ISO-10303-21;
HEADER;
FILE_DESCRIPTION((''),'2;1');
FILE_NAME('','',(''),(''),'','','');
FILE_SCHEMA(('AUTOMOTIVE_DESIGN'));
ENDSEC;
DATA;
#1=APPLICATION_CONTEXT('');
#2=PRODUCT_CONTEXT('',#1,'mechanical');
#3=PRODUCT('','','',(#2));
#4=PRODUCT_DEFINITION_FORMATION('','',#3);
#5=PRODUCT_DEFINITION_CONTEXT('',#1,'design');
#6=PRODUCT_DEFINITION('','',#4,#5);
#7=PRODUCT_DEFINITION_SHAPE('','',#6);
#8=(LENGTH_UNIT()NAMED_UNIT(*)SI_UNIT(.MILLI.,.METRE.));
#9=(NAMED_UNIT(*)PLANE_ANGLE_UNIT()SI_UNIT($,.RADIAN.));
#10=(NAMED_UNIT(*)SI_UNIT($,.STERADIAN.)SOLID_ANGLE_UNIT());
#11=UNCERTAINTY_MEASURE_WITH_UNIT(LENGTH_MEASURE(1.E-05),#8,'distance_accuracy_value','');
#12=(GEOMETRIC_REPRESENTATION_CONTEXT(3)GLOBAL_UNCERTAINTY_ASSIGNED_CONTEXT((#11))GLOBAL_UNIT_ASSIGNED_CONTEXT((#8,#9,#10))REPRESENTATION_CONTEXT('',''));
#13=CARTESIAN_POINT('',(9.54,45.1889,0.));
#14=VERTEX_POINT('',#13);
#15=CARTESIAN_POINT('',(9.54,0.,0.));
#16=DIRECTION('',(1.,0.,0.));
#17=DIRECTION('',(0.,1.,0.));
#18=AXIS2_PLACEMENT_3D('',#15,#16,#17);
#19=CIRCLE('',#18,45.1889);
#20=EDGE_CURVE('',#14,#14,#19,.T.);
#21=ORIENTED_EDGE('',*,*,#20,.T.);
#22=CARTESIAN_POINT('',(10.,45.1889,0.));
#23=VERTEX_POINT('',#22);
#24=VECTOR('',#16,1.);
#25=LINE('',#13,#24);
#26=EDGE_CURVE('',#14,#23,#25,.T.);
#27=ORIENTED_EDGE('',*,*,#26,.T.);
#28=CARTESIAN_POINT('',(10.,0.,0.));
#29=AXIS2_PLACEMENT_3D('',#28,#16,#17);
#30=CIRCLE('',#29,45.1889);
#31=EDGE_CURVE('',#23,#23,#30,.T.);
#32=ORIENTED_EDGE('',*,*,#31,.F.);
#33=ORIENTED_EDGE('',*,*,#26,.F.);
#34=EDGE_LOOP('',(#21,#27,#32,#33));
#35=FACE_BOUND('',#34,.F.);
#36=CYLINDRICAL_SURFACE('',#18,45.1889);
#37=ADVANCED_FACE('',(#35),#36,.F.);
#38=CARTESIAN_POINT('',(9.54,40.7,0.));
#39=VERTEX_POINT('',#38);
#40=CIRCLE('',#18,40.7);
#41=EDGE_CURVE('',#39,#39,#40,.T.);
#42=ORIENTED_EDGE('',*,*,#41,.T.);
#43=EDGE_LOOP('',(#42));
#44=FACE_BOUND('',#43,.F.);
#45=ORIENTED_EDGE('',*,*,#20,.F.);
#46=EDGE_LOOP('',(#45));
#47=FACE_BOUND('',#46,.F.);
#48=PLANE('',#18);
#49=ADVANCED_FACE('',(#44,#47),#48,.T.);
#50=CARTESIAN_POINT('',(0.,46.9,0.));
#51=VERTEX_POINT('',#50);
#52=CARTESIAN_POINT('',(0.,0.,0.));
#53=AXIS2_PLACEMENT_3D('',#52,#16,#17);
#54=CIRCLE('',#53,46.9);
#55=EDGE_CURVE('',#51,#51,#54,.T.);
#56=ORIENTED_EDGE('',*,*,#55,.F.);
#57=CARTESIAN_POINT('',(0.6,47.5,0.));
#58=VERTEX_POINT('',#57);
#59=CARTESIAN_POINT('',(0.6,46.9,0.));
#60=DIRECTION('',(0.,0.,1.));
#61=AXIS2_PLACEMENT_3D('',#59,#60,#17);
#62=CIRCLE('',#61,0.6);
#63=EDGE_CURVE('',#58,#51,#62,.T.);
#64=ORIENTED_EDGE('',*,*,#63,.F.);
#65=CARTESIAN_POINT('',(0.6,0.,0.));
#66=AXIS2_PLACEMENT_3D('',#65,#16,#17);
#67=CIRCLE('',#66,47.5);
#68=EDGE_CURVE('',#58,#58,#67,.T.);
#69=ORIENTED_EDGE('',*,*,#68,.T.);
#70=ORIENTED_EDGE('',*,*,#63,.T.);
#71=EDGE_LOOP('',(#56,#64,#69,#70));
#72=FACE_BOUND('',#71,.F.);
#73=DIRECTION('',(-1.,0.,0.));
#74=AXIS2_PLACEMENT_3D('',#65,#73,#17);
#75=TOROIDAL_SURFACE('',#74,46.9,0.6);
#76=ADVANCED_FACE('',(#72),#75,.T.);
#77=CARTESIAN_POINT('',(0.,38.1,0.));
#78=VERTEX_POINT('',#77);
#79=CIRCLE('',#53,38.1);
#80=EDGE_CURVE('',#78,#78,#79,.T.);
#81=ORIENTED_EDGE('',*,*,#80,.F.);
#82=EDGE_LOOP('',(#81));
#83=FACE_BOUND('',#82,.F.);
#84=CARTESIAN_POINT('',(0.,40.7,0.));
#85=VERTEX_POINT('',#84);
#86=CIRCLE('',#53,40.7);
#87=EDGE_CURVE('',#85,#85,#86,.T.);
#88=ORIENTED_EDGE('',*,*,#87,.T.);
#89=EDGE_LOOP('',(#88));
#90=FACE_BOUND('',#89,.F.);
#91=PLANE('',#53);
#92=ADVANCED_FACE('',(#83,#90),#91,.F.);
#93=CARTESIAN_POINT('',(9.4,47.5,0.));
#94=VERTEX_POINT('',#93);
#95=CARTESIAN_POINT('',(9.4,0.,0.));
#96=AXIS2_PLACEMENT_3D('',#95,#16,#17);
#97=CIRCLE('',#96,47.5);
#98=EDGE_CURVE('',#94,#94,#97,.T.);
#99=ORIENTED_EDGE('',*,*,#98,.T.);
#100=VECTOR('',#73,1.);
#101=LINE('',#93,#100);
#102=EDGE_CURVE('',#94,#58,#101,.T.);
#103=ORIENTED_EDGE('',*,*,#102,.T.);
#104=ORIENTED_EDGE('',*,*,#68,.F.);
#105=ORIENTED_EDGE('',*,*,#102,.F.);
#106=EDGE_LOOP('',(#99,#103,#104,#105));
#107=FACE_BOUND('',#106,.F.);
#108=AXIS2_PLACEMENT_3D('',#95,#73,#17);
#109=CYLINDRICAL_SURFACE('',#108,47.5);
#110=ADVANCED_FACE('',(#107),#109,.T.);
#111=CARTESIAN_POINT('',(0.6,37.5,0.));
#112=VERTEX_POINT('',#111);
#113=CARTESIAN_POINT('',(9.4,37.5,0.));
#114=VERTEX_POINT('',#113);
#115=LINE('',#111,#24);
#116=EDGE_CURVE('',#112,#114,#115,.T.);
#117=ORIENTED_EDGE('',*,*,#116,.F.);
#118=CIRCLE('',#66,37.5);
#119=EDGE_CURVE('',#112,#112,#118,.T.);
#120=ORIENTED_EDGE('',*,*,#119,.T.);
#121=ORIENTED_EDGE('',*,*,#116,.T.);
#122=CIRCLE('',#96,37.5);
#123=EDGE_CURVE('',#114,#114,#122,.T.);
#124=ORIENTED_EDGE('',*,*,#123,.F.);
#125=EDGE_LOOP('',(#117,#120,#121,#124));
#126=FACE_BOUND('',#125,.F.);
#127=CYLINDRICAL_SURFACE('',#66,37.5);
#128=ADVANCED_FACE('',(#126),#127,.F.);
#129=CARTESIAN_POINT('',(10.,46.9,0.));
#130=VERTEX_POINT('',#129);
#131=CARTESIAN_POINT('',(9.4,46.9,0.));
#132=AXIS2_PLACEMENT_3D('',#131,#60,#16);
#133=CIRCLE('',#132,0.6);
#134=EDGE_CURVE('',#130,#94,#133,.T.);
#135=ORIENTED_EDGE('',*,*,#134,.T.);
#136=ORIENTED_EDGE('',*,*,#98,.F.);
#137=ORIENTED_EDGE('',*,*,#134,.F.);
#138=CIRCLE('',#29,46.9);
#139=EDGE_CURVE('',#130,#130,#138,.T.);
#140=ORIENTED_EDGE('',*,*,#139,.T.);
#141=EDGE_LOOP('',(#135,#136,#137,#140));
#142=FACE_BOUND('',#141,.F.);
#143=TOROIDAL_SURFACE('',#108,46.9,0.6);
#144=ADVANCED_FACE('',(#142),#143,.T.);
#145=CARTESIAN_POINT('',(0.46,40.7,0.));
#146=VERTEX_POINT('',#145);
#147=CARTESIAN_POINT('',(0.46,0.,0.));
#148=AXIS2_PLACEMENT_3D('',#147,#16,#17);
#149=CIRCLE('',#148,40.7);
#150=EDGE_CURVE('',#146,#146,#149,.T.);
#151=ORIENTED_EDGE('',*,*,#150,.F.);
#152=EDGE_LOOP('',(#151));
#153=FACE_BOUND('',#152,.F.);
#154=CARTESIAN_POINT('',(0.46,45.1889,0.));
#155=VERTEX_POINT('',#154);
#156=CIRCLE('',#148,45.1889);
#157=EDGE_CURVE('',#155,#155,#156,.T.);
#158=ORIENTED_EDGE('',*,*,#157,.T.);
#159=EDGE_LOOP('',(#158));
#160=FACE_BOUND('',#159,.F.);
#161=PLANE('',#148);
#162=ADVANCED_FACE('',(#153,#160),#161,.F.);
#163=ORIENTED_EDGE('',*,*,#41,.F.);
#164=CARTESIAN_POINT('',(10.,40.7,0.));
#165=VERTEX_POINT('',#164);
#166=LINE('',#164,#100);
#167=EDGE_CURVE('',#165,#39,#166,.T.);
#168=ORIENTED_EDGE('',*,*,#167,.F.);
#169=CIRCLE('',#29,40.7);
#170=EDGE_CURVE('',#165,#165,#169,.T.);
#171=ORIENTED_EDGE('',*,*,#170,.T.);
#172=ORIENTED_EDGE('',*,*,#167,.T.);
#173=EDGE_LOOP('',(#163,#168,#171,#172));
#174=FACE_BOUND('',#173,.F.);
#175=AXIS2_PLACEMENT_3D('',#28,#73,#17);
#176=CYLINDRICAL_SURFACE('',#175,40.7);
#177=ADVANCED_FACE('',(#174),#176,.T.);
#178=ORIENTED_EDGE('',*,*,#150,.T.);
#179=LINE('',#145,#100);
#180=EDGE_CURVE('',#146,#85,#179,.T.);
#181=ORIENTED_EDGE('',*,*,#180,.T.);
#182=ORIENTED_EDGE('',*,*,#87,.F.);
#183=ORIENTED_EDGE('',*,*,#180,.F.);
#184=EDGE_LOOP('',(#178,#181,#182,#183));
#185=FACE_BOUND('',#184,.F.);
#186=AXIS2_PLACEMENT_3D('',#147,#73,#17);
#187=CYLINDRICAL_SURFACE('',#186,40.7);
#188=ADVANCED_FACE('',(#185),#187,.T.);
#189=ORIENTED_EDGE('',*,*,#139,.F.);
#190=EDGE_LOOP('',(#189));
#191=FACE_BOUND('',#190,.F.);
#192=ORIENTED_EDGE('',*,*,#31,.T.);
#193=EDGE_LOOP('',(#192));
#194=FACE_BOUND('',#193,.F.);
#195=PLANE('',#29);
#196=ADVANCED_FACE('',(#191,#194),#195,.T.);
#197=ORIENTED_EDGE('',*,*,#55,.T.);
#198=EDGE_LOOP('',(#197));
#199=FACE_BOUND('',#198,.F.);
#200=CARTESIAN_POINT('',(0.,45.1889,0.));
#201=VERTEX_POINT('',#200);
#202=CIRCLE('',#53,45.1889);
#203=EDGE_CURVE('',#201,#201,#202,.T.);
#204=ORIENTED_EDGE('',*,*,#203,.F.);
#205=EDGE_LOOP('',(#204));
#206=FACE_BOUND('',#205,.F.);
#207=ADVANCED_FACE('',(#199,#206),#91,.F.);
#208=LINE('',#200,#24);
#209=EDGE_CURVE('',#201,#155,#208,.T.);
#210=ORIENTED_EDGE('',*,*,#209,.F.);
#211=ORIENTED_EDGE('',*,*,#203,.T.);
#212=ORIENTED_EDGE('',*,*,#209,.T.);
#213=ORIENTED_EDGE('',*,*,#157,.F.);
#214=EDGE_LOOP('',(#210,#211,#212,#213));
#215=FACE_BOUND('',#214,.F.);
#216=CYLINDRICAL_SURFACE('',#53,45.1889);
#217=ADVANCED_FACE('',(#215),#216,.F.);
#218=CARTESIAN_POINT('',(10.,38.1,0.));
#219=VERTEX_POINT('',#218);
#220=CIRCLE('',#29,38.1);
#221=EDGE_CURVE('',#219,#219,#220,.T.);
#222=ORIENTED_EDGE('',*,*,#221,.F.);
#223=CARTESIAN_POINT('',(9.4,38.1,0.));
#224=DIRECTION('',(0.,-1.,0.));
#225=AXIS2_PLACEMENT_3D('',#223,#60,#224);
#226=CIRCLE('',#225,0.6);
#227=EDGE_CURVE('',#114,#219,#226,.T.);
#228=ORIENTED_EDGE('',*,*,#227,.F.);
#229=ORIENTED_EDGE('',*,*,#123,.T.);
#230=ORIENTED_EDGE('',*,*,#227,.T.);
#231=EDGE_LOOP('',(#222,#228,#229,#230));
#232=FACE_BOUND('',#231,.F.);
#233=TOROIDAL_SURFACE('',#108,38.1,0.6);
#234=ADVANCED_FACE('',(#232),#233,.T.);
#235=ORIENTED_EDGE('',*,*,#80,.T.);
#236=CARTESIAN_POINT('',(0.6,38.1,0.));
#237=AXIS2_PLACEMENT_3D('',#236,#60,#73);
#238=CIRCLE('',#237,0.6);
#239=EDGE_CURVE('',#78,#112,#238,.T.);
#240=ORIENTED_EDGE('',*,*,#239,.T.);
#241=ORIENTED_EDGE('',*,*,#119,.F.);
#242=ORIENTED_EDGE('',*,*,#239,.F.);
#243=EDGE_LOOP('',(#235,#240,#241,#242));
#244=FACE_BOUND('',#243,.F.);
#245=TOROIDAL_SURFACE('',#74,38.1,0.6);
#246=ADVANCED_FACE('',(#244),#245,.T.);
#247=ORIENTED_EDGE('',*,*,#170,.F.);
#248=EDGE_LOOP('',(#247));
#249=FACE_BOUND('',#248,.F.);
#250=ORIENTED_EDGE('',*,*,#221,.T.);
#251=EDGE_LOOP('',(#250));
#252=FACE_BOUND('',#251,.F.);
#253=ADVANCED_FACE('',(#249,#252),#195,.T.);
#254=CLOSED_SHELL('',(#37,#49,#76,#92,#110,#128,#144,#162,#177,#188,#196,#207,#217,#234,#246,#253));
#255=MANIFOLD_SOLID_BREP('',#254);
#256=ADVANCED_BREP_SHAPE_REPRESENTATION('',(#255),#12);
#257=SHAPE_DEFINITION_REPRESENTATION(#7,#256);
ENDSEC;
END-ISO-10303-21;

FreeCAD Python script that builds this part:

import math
import FreeCAD as App
import Part
import Sketcher

doc = App.newDocument("Part")
body = doc.addObject("PartDesign::Body", "Body")

sketch1 = doc.addObject("Sketcher::SketchObject", "Sketch")
body.addObject(sketch1)
sketch1.AttachmentSupport = (doc.XY_Plane, [""])
sketch1.MapMode = "FlatFace"
sketch1.addGeometry([
    Part.LineSegment(App.Vector(0, 40.7, 0), App.Vector(0, 38.1, 0)),
    Part.ArcOfCircle(Part.Circle(App.Vector(0.6, 38.1, 0), App.Vector(0, 0, 1), 0.6), math.radians(180), math.radians(270)),
    Part.LineSegment(App.Vector(0.6, 37.5, 0), App.Vector(9.4, 37.5, 0)),
    Part.ArcOfCircle(Part.Circle(App.Vector(9.4, 38.1, 0), App.Vector(0, 0, 1), 0.6), math.radians(-90), math.radians(0)),
    Part.LineSegment(App.Vector(10, 38.1, 0), App.Vector(10, 40.7, 0)),
    Part.LineSegment(App.Vector(10, 40.7, 0), App.Vector(9.54, 40.7, 0)),
    Part.LineSegment(App.Vector(9.54, 40.7, 0), App.Vector(9.54, 45.19, 0)),
    Part.LineSegment(App.Vector(9.54, 45.19, 0), App.Vector(10, 45.19, 0)),
    Part.LineSegment(App.Vector(10, 45.19, 0), App.Vector(10, 46.9, 0)),
    Part.ArcOfCircle(Part.Circle(App.Vector(9.4, 46.9, 0), App.Vector(0, 0, 1), 0.6), math.radians(0), math.radians(90)),
    Part.LineSegment(App.Vector(9.4, 47.5, 0), App.Vector(0.6, 47.5, 0)),
    Part.ArcOfCircle(Part.Circle(App.Vector(0.6, 46.9, 0), App.Vector(0, 0, 1), 0.6), math.radians(90), math.radians(180)),
    Part.LineSegment(App.Vector(0, 46.9, 0), App.Vector(0, 45.19, 0)),
    Part.LineSegment(App.Vector(0, 45.19, 0), App.Vector(0.46, 45.19, 0)),
    Part.LineSegment(App.Vector(0.46, 45.19, 0), App.Vector(0.46, 40.7, 0)),
    Part.LineSegment(App.Vector(0.46, 40.7, 0), App.Vector(0, 40.7, 0)),
], False)
sketch1.addConstraint([
    Sketcher.Constraint("Tangent", 0, 2, 1, 1),
    Sketcher.Constraint("Tangent", 1, 2, 2, 1),
    Sketcher.Constraint("Tangent", 2, 2, 3, 1),
    Sketcher.Constraint("Tangent", 3, 2, 4, 1),
    Sketcher.Constraint("Coincident", 4, 2, 5, 1),
    Sketcher.Constraint("Coincident", 5, 2, 6, 1),
    Sketcher.Constraint("Coincident", 6, 2, 7, 1),
    Sketcher.Constraint("Coincident", 7, 2, 8, 1),
    Sketcher.Constraint("Tangent", 8, 2, 9, 1),
    Sketcher.Constraint("Tangent", 9, 2, 10, 1),
    Sketcher.Constraint("Tangent", 10, 2, 11, 1),
    Sketcher.Constraint("Tangent", 11, 2, 12, 1),
    Sketcher.Constraint("Coincident", 12, 2, 13, 1),
    Sketcher.Constraint("Coincident", 13, 2, 14, 1),
    Sketcher.Constraint("Coincident", 14, 2, 15, 1),
    Sketcher.Constraint("Coincident", 15, 2, 0, 1),
    Sketcher.Constraint("Vertical", 0),
    Sketcher.Constraint("Horizontal", 2),
    Sketcher.Constraint("Vertical", 4),
    Sketcher.Constraint("Horizontal", 5),
    Sketcher.Constraint("Vertical", 6),
    Sketcher.Constraint("Horizontal", 7),
    Sketcher.Constraint("Vertical", 8),
    Sketcher.Constraint("Horizontal", 10),
    Sketcher.Constraint("Vertical", 12),
    Sketcher.Constraint("Horizontal", 13),
    Sketcher.Constraint("Vertical", 14),
    Sketcher.Constraint("Horizontal", 15),
    Sketcher.Constraint("Equal", 1, 3),
    Sketcher.Constraint("Equal", 3, 9),
    Sketcher.Constraint("Equal", 9, 11),
    Sketcher.Constraint("PointOnObject", 0, 2, -2),
    Sketcher.Constraint("PointOnObject", 11, 2, -2),
    Sketcher.Constraint("Horizontal", 7, 2, 12, 2),
    Sketcher.Constraint("Horizontal", 5, 2, 14, 2),
    Sketcher.Constraint("Vertical", 3, 3, 9, 3),
    Sketcher.Constraint("Equal", 7, 13),
    Sketcher.Constraint("Radius", 1, 0.6),
    Sketcher.Constraint("DistanceX", 2, 1, 2, 2, 8.8),
    Sketcher.Constraint("DistanceY", 0, 2, 0, 1, 2.6),
    Sketcher.Constraint("DistanceX", 5, 2, 5, 1, 0.46),
    Sketcher.Constraint("DistanceY", -1, 1, 1, 3, 38.1),
    Sketcher.Constraint("DistanceY", -1, 1, 9, 3, 46.9),
    Sketcher.Constraint("DistanceY", 6, 1, 6, 2, 4.489),
])
revolution = doc.addObject("PartDesign::Revolution", "Revolution")
body.addObject(revolution)
revolution.Profile = sketch1
revolution.ReferenceAxis = (sketch1, ["H_Axis"])
revolution.Angle = 360

doc.recompute()
